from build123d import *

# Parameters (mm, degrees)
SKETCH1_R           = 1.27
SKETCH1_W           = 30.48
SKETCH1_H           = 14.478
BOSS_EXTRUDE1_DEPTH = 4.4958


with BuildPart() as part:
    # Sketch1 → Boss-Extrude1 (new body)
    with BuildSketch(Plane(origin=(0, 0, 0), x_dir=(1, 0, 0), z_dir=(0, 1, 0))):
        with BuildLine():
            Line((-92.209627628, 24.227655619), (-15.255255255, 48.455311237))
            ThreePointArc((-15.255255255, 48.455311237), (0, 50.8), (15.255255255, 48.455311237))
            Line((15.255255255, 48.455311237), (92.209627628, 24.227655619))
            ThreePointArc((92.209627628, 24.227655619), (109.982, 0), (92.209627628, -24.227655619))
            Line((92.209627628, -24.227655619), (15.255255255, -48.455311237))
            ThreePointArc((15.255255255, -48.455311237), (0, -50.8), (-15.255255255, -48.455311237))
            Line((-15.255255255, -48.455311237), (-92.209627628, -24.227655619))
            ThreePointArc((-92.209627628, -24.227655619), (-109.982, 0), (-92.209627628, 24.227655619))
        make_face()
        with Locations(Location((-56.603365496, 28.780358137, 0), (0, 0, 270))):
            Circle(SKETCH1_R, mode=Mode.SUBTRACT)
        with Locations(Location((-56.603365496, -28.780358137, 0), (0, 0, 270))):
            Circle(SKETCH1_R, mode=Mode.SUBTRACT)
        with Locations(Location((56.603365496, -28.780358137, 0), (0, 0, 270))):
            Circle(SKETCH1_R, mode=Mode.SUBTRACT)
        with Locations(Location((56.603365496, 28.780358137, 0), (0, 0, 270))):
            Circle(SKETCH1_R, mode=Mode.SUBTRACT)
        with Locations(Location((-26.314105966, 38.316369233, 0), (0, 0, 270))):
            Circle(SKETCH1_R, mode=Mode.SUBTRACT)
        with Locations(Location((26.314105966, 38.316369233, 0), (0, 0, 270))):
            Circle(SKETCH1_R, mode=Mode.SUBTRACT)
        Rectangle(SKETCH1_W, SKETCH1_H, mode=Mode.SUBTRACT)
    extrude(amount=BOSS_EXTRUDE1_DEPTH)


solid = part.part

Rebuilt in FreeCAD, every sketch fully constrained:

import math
import FreeCAD as App
import Part
import Sketcher

V = App.Vector
Q = App.Units.Quantity


def add_polygon(sketch, points):
    """Adds a closed chain of lines whose ends are joined by coincident constraints."""
    first, n = sketch.GeometryCount, len(points)
    for a, b in zip(points, points[1:] + points[:1]):
        sketch.addGeometry(Part.LineSegment(App.Vector(*a, 0), App.Vector(*b, 0)), False)
    for i in range(n):
        sketch.addConstraint(Sketcher.Constraint("Coincident", first + i, 2, first + (i + 1) % n, 1))

doc = App.newDocument("Part")
body = doc.addObject("PartDesign::Body", "Body")

# Sketch on XZ plane
sketch1 = body.newObject("Sketcher::SketchObject", "Sketch")
sketch1.AttachmentSupport = (doc.getObject("XZ_Plane"), [""])
sketch1.MapMode = "FlatFace"
sketch1.addGeometry(Part.LineSegment(V(-15.255255, -48.455311, 0), V(-92.209628, -24.227656, 0)), False)  # 0
sketch1.addGeometry(Part.ArcOfCircle(Part.Circle(V(-84.582, 0, 0), V(0, 0, 1), 25.4), math.radians(107.475641), math.radians(252.524359)), False)  # 1
sketch1.addGeometry(Part.LineSegment(V(-92.209628, 24.227656, 0), V(-15.255255, 48.455311, 0)), False)  # 2
sketch1.addGeometry(Part.ArcOfCircle(Part.Circle(V(0, 0, 0), V(0, 0, 1), 50.8), math.radians(72.524359), math.radians(107.475641)), False)  # 3
sketch1.addGeometry(Part.LineSegment(V(15.255255, 48.455311, 0), V(92.209628, 24.227656, 0)), False)  # 4
sketch1.addGeometry(Part.ArcOfCircle(Part.Circle(V(84.582, 0, 0), V(0, 0, 1), 25.4), math.radians(-72.524359), math.radians(72.524359)), False)  # 5
sketch1.addGeometry(Part.LineSegment(V(92.209628, -24.227656, 0), V(15.255255, -48.455311, 0)), False)  # 6
sketch1.addGeometry(Part.ArcOfCircle(Part.Circle(V(0, 0, 0), V(0, 0, 1), 50.8), math.radians(-107.475641), math.radians(-72.524359)), False)  # 7
sketch1.addGeometry(Part.Circle(V(56.603365, 28.780358, 0), V(0, 0, 1), 1.27), False)  # 8
sketch1.addGeometry(Part.Circle(V(-56.603365, 28.780358, 0), V(0, 0, 1), 1.27), False)  # 9
add_polygon(sketch1, [(-15.24, 7.239), (-15.24, -7.239), (15.24, -7.239), (15.24, 7.239)])  # lines 10-13
sketch1.addGeometry(Part.Circle(V(56.603365, -28.780358, 0), V(0, 0, 1), 1.27), False)  # 14
sketch1.addGeometry(Part.Circle(V(26.314106, -38.316369, 0), V(0, 0, 1), 1.27), False)  # 15
sketch1.addGeometry(Part.Circle(V(-26.314106, -38.316369, 0), V(0, 0, 1), 1.27), False)  # 16
sketch1.addGeometry(Part.Circle(V(-56.603365, -28.780358, 0), V(0, 0, 1), 1.27), False)  # 17
sketch1.addConstraint(Sketcher.Constraint("Tangent", 0, 2, 1, 2))
sketch1.addConstraint(Sketcher.Constraint("Tangent", 1, 1, 2, 1))
sketch1.addConstraint(Sketcher.Constraint("Tangent", 2, 2, 3, 2))
sketch1.addConstraint(Sketcher.Constraint("Tangent", 3, 1, 4, 1))
sketch1.addConstraint(Sketcher.Constraint("Tangent", 4, 2, 5, 2))
sketch1.addConstraint(Sketcher.Constraint("Tangent", 5, 1, 6, 1))
sketch1.addConstraint(Sketcher.Constraint("Tangent", 6, 2, 7, 2))
sketch1.addConstraint(Sketcher.Constraint("Tangent", 7, 1, 0, 1))
sketch1.addConstraint(Sketcher.Constraint("Vertical", 10))
sketch1.addConstraint(Sketcher.Constraint("Horizontal", 11))
sketch1.addConstraint(Sketcher.Constraint("Vertical", 12))
sketch1.addConstraint(Sketcher.Constraint("Horizontal", 13))
sketch1.addConstraint(Sketcher.Constraint("Coincident", 3, 3, -1, 1))
sketch1.addConstraint(Sketcher.Constraint("Coincident", 7, 3, -1, 1))
sketch1.addConstraint(Sketcher.Constraint("Equal", 1, 5))
sketch1.addConstraint(Sketcher.Constraint("Equal", 3, 7))
sketch1.addConstraint(Sketcher.Constraint("Equal", 8, 9))
sketch1.addConstraint(Sketcher.Constraint("Equal", 9, 14))
sketch1.addConstraint(Sketcher.Constraint("Equal", 14, 15))
sketch1.addConstraint(Sketcher.Constraint("Equal", 15, 16))
sketch1.addConstraint(Sketcher.Constraint("Equal", 16, 17))
sketch1.addConstraint(Sketcher.Constraint("Symmetric", 1, 3, 5, 3, -1, 1))
sketch1.addConstraint(Sketcher.Constraint("Symmetric", 9, 3, 14, 3, -1, 1))
sketch1.addConstraint(Sketcher.Constraint("Symmetric", 8, 3, 17, 3, -1, 1))
sketch1.addConstraint(Sketcher.Constraint("Symmetric", 10, 2, 12, 2, -1, 1))
sketch1.addConstraint(Sketcher.Constraint("Symmetric", 8, 3, 9, 3, -2))
sketch1.addConstraint(Sketcher.Constraint("Symmetric", 15, 3, 16, 3, -2))
sketch1.addConstraint(Sketcher.Constraint("PointOnObject", 1, 3, -1))
sketch1.addConstraint(Sketcher.Constraint("Radius", 1, Q("1 in")))
sketch1.addConstraint(Sketcher.Constraint("Radius", 3, Q("2 in")))
sketch1.addConstraint(Sketcher.Constraint("Diameter", 8, Q("0.1 in")))
sketch1.addConstraint(Sketcher.Constraint("DistanceX", 11, 1, 11, 2, Q("1.2 in")))
sketch1.addConstraint(Sketcher.Constraint("DistanceY", 10, 2, 10, 1, Q("0.57 in")))
sketch1.addConstraint(Sketcher.Constraint("DistanceX", 1, 3, -1, 1, Q("3.33 in")))
sketch1.addConstraint(Sketcher.Constraint("DistanceY", -1, 1, 8, 3, 28.780358))
sketch1.addConstraint(Sketcher.Constraint("DistanceY", 15, 3, -1, 1, 38.316369))
sketch1.addConstraint(Sketcher.Constraint("DistanceX", 9, 3, 8, 3, 113.206731))
sketch1.addConstraint(Sketcher.Constraint("DistanceX", 15, 3, 14, 3, 30.28926))
pad1 = body.newObject("PartDesign::Pad", "Pad")
pad1.Profile = sketch1
pad1.Length = Q("0.177 in")
pad1.Reversed = True

doc.recompute()
